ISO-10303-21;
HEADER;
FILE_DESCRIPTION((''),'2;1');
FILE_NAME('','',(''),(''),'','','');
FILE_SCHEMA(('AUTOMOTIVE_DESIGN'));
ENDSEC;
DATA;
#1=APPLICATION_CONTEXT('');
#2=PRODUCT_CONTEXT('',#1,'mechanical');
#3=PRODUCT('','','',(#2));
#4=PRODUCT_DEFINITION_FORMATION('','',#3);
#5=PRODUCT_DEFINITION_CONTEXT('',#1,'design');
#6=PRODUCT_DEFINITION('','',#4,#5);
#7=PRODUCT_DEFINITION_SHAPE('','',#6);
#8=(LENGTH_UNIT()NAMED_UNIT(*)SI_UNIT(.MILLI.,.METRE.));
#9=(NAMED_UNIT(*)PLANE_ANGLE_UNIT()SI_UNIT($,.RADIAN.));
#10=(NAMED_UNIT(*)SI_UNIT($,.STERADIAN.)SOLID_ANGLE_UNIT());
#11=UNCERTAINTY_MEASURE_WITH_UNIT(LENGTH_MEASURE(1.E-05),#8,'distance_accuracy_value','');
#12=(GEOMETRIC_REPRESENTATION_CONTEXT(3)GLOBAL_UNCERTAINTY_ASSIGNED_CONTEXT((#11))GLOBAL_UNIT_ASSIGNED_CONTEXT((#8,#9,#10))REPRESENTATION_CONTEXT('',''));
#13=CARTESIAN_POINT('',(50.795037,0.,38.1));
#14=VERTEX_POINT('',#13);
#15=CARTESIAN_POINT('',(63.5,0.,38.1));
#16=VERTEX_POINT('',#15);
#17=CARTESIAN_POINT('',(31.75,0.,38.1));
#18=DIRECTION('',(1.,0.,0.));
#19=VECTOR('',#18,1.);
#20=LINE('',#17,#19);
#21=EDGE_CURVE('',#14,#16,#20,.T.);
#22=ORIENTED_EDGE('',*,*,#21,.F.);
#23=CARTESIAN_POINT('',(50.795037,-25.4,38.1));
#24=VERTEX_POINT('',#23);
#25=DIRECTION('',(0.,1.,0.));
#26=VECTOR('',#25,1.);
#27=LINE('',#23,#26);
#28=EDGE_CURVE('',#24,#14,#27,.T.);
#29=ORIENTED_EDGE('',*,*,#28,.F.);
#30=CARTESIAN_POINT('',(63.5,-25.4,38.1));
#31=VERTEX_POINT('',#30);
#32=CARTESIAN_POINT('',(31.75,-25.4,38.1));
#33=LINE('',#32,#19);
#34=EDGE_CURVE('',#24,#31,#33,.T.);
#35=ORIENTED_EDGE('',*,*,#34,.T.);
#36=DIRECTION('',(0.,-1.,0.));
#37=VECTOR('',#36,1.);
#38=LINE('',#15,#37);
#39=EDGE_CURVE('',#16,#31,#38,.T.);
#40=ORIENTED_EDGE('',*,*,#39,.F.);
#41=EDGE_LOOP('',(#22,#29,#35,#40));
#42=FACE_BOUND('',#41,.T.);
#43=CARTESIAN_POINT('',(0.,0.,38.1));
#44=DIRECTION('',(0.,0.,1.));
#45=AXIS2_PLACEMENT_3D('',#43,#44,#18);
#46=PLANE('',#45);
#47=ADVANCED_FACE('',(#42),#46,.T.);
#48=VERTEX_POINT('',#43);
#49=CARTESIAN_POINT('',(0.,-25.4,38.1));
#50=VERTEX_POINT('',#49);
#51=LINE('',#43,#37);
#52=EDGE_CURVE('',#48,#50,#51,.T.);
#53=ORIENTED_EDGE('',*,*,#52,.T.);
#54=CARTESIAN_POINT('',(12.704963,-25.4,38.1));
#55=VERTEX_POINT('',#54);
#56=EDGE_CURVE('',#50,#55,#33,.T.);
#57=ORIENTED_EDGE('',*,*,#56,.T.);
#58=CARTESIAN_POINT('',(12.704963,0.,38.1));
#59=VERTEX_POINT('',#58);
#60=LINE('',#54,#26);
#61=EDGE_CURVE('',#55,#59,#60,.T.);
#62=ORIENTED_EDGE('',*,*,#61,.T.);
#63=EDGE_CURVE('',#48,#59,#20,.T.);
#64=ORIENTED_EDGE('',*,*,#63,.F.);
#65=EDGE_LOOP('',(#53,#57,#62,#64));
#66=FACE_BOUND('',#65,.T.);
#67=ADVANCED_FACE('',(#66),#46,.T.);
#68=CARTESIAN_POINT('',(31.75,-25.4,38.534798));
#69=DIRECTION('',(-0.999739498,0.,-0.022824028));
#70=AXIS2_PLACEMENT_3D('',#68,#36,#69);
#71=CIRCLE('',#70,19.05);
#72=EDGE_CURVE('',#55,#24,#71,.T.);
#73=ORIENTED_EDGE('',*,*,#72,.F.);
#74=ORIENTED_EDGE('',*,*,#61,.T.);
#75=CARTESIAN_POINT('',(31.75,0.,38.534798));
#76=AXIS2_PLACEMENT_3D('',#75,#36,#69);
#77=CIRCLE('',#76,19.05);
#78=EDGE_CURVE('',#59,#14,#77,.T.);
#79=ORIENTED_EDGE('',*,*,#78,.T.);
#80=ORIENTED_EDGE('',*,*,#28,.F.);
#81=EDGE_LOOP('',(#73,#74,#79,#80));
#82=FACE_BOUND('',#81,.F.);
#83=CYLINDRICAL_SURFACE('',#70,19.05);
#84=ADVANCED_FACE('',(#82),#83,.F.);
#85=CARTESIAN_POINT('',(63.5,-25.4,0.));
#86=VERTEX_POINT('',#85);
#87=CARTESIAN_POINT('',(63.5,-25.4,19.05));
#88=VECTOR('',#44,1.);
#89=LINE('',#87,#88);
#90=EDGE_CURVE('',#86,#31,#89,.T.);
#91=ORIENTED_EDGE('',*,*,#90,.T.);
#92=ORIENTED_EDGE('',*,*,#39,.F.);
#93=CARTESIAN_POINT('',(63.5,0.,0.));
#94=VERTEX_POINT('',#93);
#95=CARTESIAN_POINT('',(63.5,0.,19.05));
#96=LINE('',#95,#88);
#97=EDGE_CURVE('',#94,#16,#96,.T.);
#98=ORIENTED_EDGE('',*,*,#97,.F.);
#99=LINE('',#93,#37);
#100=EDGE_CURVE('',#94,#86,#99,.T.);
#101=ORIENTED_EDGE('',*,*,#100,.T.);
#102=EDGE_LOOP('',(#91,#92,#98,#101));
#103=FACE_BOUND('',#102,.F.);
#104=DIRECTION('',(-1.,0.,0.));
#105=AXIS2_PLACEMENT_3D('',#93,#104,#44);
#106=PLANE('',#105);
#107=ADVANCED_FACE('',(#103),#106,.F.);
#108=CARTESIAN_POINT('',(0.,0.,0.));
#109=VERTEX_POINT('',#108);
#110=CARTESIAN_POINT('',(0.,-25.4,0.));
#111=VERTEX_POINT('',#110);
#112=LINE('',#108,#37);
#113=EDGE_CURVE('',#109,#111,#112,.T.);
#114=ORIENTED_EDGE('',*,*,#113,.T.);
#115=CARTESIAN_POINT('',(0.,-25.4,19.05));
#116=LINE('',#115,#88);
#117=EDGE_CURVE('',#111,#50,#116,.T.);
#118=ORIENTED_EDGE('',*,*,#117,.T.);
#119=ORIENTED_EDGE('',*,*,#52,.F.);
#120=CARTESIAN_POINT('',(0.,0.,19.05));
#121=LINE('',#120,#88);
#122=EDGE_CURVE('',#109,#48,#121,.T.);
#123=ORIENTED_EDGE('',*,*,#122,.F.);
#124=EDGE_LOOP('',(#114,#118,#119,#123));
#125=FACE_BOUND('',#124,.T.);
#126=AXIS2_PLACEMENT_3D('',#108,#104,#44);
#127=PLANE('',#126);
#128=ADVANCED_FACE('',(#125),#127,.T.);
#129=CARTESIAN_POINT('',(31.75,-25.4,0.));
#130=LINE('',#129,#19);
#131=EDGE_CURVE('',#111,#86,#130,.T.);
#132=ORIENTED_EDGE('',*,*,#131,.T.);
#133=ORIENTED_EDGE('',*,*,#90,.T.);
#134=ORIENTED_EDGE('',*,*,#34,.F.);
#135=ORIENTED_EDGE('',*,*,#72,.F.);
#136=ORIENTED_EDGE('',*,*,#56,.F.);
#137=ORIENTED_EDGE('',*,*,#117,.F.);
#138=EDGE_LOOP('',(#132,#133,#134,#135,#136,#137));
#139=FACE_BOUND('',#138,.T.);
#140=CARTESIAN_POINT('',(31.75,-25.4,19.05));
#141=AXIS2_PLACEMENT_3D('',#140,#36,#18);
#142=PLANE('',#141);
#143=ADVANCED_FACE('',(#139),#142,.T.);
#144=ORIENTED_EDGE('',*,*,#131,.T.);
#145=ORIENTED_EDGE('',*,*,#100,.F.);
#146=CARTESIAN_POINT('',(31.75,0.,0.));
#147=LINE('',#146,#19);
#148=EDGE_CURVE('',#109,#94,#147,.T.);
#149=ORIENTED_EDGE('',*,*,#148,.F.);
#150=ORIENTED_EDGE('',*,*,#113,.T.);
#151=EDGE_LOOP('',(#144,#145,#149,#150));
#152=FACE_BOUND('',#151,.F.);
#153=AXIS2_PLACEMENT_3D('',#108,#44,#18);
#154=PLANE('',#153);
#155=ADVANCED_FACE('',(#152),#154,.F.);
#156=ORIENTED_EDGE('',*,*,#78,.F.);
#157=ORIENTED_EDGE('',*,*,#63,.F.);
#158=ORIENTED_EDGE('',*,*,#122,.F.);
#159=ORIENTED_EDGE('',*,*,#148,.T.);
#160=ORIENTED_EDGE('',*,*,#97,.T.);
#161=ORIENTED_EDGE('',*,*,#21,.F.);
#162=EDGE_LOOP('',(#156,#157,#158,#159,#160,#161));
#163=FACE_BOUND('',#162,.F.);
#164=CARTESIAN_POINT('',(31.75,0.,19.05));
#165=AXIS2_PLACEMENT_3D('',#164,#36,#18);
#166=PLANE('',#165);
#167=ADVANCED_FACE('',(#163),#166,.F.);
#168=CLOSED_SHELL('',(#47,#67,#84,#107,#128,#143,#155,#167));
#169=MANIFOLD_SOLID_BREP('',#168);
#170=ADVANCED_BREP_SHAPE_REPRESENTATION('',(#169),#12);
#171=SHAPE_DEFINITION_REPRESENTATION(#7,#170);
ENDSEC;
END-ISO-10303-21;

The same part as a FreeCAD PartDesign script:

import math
import FreeCAD as App
import Part
import Sketcher

V = App.Vector
Q = App.Units.Quantity

doc = App.newDocument("Part")
params = doc.addObject("Spreadsheet::Sheet", "Params")
for row, (alias, value) in enumerate([
    ("sketch1_width", "2.5 in"),
    ("sketch1_height", "1.5 in"),
    ("pad1_length", "1 in"),
    ("sketch2_radius", "0.75 in"),
    ("pocket1_length", "1 in"),
], start=1):
    params.set(f"A{row}", alias)
    params.set(f"B{row}", "=" + value)
    params.setAlias(f"B{row}", alias)

body = doc.addObject("PartDesign::Body", "Body")

sketch1 = body.newObject("Sketcher::SketchObject", "Sketch")
sketch1.AttachmentSupport = (doc.getObject("XZ_Plane"), [""])
sketch1.MapMode = "FlatFace"
sketch1.addGeometry(Part.LineSegment(V(0, 38.1, 0), V(0, 0, 0)), False)
sketch1.addGeometry(Part.LineSegment(V(0, 0, 0), V(63.5, 0, 0)), False)
sketch1.addGeometry(Part.LineSegment(V(63.5, 0, 0), V(63.5, 38.1, 0)), False)
sketch1.addGeometry(Part.LineSegment(V(63.5, 38.1, 0), V(0, 38.1, 0)), False)
sketch1.addConstraint(Sketcher.Constraint("Coincident", 0, 2, 1, 1))
sketch1.addConstraint(Sketcher.Constraint("Coincident", 1, 2, 2, 1))
sketch1.addConstraint(Sketcher.Constraint("Coincident", 2, 2, 3, 1))
sketch1.addConstraint(Sketcher.Constraint("Coincident", 3, 2, 0, 1))
sketch1.addConstraint(Sketcher.Constraint("Vertical", 0))
sketch1.addConstraint(Sketcher.Constraint("Horizontal", 1))
sketch1.addConstraint(Sketcher.Constraint("Vertical", 2))
sketch1.addConstraint(Sketcher.Constraint("Horizontal", 3))
sketch1.addConstraint(Sketcher.Constraint("Coincident", 0, 2, -1, 1))
sketch1.addConstraint(Sketcher.Constraint("DistanceX", 1, 1, 1, 2, Q("2.5 in")))
sketch1.addConstraint(Sketcher.Constraint("DistanceY", 0, 2, 0, 1, Q("1.5 in")))
sketch1.setExpression("Constraints[9]", "Params.sketch1_width")
sketch1.setExpression("Constraints[10]", "Params.sketch1_height")
pad1 = body.newObject("PartDesign::Pad", "Pad")
pad1.Profile = sketch1
pad1.setExpression("Length", "Params.pad1_length")

sketch2 = body.newObject("Sketcher::SketchObject", "Sketch001")
sketch2.AttachmentSupport = (doc.getObject("XZ_Plane"), [""])
sketch2.MapMode = "FlatFace"
sketch2.AttachmentOffset = App.Placement(V(0, 0, 1 * 25.4), App.Rotation())
sketch2.addGeometry(Part.ArcOfCircle(Part.Circle(V(31.75, 38.534798, 0), V(0, 0, 1), 19.05), math.radians(-178.692166), math.radians(-1.307834)), False)
sketch2.addGeometry(Part.ArcOfCircle(Part.Circle(V(31.75, 38.534798, 0), V(0, 0, 1), 19.05), math.radians(-1.307834), math.radians(0)), False)
sketch2.addGeometry(Part.ArcOfCircle(Part.Circle(V(31.75, 38.534798, 0), V(0, 0, 1), 19.05), math.radians(0), math.radians(181.307834)), False)
sketch2.addConstraint(Sketcher.Constraint("Tangent", 0, 2, 1, 1))
sketch2.addConstraint(Sketcher.Constraint("Tangent", 1, 2, 2, 1))
sketch2.addConstraint(Sketcher.Constraint("Coincident", 2, 2, 0, 1))
sketch2.addConstraint(Sketcher.Constraint("Equal", 0, 1))
sketch2.addConstraint(Sketcher.Constraint("Horizontal", 2, 3, 1, 2))
sketch2.addConstraint(Sketcher.Constraint("Horizontal", 0, 2, 2, 2))
sketch2.addConstraint(Sketcher.Constraint("Radius", 0, Q("0.75 in")))
sketch2.addConstraint(Sketcher.Constraint("DistanceX", -1, 1, 1, 2, Q("2 in")))
sketch2.addConstraint(Sketcher.Constraint("DistanceY", -1, 1, 0, 2, Q("1.5 in")))
sketch2.addConstraint(Sketcher.Constraint("DistanceY", -1, 1, 0, 3, Q("38.534798 mm")))
sketch2.setExpression("Constraints[6]", "Params.sketch2_radius")
pocket1 = body.newObject("PartDesign::Pocket", "Pocket")
pocket1.Profile = sketch2
pocket1.setExpression("Length", "Params.pocket1_length")

doc.recompute()
